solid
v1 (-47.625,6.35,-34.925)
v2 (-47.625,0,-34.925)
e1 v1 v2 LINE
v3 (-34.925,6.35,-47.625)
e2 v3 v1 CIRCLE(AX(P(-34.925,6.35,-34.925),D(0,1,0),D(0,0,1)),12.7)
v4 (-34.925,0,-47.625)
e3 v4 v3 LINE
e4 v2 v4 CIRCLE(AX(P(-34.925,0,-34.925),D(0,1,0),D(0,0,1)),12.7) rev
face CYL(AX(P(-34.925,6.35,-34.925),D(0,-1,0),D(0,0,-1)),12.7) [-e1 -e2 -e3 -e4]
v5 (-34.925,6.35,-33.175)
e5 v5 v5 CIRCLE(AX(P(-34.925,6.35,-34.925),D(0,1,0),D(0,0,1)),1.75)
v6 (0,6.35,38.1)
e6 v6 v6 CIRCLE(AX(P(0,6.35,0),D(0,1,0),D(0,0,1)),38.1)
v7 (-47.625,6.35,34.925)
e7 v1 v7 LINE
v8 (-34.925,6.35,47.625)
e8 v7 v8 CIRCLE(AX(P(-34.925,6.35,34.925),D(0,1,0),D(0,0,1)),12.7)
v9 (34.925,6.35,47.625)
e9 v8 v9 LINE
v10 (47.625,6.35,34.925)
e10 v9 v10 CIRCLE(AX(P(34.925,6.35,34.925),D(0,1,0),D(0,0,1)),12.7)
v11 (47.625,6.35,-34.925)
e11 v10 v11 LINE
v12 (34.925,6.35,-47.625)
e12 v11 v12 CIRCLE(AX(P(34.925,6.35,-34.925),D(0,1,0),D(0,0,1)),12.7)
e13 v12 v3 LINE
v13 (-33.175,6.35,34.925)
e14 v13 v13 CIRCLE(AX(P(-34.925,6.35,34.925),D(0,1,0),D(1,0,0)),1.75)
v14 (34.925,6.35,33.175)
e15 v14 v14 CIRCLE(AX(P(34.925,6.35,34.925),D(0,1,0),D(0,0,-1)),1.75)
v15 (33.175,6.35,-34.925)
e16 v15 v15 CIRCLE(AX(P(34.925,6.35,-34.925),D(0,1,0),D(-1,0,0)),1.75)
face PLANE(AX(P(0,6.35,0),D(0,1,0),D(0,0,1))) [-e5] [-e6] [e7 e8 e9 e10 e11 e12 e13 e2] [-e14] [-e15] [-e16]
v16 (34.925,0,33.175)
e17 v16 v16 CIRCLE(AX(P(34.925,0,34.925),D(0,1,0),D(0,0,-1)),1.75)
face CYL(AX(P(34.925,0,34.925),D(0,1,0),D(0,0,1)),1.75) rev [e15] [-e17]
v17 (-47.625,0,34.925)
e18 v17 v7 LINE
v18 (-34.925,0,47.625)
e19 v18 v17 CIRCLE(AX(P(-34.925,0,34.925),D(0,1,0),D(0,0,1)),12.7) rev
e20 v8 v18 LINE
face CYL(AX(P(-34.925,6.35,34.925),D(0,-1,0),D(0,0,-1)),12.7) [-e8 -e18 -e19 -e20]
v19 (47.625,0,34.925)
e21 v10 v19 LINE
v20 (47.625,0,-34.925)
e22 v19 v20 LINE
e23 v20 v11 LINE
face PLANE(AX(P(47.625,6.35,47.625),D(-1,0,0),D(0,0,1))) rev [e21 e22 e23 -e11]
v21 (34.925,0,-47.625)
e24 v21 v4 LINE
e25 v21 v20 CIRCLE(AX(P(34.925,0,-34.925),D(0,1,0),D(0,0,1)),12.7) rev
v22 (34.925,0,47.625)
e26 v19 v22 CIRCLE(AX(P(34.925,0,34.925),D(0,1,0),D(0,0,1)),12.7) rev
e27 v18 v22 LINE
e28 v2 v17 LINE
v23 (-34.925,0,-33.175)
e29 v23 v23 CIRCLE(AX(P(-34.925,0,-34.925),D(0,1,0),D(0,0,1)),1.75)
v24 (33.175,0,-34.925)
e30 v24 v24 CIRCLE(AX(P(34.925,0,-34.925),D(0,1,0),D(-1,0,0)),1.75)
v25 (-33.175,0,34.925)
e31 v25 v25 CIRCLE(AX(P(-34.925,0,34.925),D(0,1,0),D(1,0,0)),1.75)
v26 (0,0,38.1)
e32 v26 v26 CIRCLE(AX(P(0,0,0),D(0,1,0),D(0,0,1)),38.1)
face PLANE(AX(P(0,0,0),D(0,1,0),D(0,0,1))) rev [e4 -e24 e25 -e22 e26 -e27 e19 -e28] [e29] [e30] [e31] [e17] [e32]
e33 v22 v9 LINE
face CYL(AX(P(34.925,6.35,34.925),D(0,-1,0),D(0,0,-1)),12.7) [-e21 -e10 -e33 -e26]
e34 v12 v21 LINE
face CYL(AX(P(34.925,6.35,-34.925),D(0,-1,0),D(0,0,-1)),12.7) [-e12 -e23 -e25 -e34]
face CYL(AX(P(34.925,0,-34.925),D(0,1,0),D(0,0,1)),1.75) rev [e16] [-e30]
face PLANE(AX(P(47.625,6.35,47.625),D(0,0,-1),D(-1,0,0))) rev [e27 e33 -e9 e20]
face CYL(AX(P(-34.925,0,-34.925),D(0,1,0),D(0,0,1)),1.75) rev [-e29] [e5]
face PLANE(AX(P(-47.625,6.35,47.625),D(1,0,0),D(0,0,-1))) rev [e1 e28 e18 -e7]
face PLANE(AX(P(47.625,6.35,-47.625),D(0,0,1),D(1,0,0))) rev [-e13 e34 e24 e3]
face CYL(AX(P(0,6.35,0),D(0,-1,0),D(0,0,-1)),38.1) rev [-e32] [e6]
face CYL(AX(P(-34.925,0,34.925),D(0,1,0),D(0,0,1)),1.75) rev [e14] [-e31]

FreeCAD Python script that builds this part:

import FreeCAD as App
import Part
import Sketcher
Q = App.Units.Quantity


def edges_at(feature, points):
    """Names of the edges that pass closest to the given points."""
    edges = feature.Shape.Edges
    near = lambda p: min(range(len(edges)), key=lambda i: edges[i].distToShape(Part.Vertex(*p))[0])
    return sorted({f"Edge{near(p) + 1}" for p in points})

doc = App.newDocument("Part")
body = doc.addObject("PartDesign::Body", "Body")

# Sketch on XZ plane
sketch1 = body.newObject("Sketcher::SketchObject", "Sketch")
sketch1.AttachmentSupport = (doc.getObject("XZ_Plane"), [""])
sketch1.MapMode = "FlatFace"
sketch1.addGeometry(Part.LineSegment(App.Vector(-48, -48, 0), App.Vector(-48, 48, 0)), False)
sketch1.addGeometry(Part.LineSegment(App.Vector(-48, 48, 0), App.Vector(48, 48, 0)), False)
sketch1.addGeometry(Part.LineSegment(App.Vector(48, 48, 0), App.Vector(48, -48, 0)), False)
sketch1.addGeometry(Part.LineSegment(App.Vector(48, -48, 0), App.Vector(-48, -48, 0)), False)
sketch1.addGeometry(Part.Circle(App.Vector(0, 0, 0), App.Vector(0, 0, 1), 38), False)
sketch1.addConstraint(Sketcher.Constraint("Coincident", 0, 2, 1, 1))
sketch1.addConstraint(Sketcher.Constraint("Coincident", 1, 2, 2, 1))
sketch1.addConstraint(Sketcher.Constraint("Coincident", 2, 2, 3, 1))
sketch1.addConstraint(Sketcher.Constraint("Coincident", 3, 2, 0, 1))
sketch1.addConstraint(Sketcher.Constraint("Vertical", 0))
sketch1.addConstraint(Sketcher.Constraint("Horizontal", 1))
sketch1.addConstraint(Sketcher.Constraint("Vertical", 2))
sketch1.addConstraint(Sketcher.Constraint("Horizontal", 3))
sketch1.addConstraint(Sketcher.Constraint("Coincident", 4, 3, -1, 1))
sketch1.addConstraint(Sketcher.Constraint("Symmetric", 0, 2, 2, 2, -1, 1))
sketch1.addConstraint(Sketcher.Constraint("Equal", 3, 0))
sketch1.addConstraint(Sketcher.Constraint("Diameter", 4, Q("3 in")))
sketch1.addConstraint(Sketcher.Constraint("DistanceX", 1, 1, 1, 2, Q("3.75 in")))
pad1 = body.newObject("PartDesign::Pad", "Pad")
pad1.Profile = sketch1
pad1.Length = Q("0.25 in")
pad1.Reversed = True

# Sketch on XZ plane
sketch2 = body.newObject("Sketcher::SketchObject", "Sketch001")
sketch2.AttachmentSupport = (doc.getObject("XZ_Plane"), [""])
sketch2.MapMode = "FlatFace"
sketch2.AttachmentOffset = App.Placement(App.Vector(0, 0, -0.25 * 25.4), App.Rotation())
sketch2.addGeometry(Part.Circle(App.Vector(-34.9, -34.9, 0), App.Vector(0, 0, 1), 1.8), False)
sketch2.addConstraint(Sketcher.Constraint("Diameter", 0, 3.5))
sketch2.addConstraint(Sketcher.Constraint("DistanceX", 0, 3, -1, 1, Q("1.375 in")))
sketch2.addConstraint(Sketcher.Constraint("DistanceY", 0, 3, -1, 1, Q("1.375 in")))
pocket1 = body.newObject("PartDesign::Pocket", "Pocket")
pocket1.Profile = sketch2
pocket1.Type = "ThroughAll"
pocket1.Reversed = True
doc.recompute()

polarpattern = body.newObject("PartDesign::PolarPattern", "PolarPattern")
polarpattern.Originals = [pocket1]
polarpattern.Axis = (doc.getObject("Y_Axis"), [""])
polarpattern.Angle = 360
polarpattern.Occurrences = 4
body.Tip = polarpattern
doc.recompute()

fillet = body.newObject("PartDesign::Fillet", "Fillet")
fillet.Base = (polarpattern, edges_at(polarpattern, [
    (-47.625, 3.175, -47.625),
    (47.625, 3.175, -47.625),
    (47.625, 3.175, 47.625),
    (-47.625, 3.175, 47.625),
]))
fillet.Radius = Q("0.5 in")

doc.recompute()
